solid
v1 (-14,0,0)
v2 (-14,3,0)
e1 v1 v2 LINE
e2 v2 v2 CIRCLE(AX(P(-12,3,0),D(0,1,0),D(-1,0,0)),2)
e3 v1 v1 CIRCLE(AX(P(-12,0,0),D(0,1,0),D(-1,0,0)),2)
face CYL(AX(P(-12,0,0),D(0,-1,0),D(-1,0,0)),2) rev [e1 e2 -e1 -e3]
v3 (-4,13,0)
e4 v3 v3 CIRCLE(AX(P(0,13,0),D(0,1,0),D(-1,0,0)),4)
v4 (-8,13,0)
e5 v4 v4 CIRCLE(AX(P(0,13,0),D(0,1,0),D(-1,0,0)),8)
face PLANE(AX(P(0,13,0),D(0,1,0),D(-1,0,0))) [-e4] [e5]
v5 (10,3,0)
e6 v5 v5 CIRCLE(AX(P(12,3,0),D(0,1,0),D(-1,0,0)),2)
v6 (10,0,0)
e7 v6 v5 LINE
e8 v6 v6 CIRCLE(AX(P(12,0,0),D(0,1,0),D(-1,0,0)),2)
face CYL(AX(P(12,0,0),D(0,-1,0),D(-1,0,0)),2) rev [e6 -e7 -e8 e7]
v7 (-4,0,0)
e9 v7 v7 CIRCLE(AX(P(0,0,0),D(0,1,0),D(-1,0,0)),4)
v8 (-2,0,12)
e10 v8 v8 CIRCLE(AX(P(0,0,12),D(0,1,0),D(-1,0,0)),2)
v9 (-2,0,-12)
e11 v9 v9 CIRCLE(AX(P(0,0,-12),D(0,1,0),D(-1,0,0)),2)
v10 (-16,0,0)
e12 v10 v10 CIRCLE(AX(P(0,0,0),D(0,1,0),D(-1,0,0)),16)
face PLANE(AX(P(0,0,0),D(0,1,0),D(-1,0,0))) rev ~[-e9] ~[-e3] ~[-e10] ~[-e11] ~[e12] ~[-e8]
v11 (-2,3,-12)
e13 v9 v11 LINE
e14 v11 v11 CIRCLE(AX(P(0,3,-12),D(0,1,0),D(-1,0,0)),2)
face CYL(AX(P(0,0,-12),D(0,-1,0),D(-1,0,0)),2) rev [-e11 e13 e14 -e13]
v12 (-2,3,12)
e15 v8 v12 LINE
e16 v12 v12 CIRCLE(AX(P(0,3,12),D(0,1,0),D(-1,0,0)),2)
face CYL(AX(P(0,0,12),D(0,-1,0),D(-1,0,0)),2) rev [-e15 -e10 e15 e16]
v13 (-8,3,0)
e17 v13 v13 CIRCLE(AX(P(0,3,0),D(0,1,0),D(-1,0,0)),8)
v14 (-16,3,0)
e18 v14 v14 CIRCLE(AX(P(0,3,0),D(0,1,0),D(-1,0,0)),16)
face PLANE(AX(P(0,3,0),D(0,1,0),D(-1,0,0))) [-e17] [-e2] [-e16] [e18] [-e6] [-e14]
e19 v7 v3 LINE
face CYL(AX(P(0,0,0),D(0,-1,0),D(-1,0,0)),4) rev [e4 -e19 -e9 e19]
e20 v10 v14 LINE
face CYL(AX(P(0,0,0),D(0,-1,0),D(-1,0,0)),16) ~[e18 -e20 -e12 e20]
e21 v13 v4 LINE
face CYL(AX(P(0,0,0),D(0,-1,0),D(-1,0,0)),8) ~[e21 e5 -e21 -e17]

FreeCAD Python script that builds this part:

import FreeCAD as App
import Part
import Sketcher
from FreeCAD import Vector

doc = App.newDocument("Part")
body = doc.addObject("PartDesign::Body", "Body")

# Sketch on XZ plane
sketch1 = body.newObject("Sketcher::SketchObject", "Sketch")
sketch1.AttachmentSupport = (doc.getObject("XZ_Plane"), [""])
sketch1.MapMode = "FlatFace"
sketch1.addGeometry([
    Part.Circle(Vector(0, 0, 0), Vector(0, 0, 1), 16),  # 0
    Part.Circle(Vector(0, -12, 0), Vector(0, 0, 1), 2),  # 1
    Part.Circle(Vector(12, 0, 0), Vector(0, 0, 1), 2),  # 2
    Part.Circle(Vector(0, 0, 0), Vector(0, 0, 1), 8),  # 3
    Part.Circle(Vector(-12, 0, 0), Vector(0, 0, 1), 2),  # 4
    Part.Circle(Vector(0, 12, 0), Vector(0, 0, 1), 2),  # 5
], False)
sketch1.addConstraint([
    Sketcher.Constraint("Coincident", 0, 3, -1, 1),
    Sketcher.Constraint("Coincident", 3, 3, -1, 1),
    Sketcher.Constraint("Equal", 1, 2),
    Sketcher.Constraint("Equal", 2, 4),
    Sketcher.Constraint("Equal", 4, 5),
    Sketcher.Constraint("Symmetric", 2, 3, 4, 3, -1, 1),
    Sketcher.Constraint("Symmetric", 1, 3, 5, 3, -1, 1),
    Sketcher.Constraint("PointOnObject", 1, 3, -2),
    Sketcher.Constraint("PointOnObject", 2, 3, -1),
    Sketcher.Constraint("Diameter", 0, 32.0),
    Sketcher.Constraint("Diameter", 1, 4.0),
    Sketcher.Constraint("Diameter", 3, 16.0),
    Sketcher.Constraint("DistanceX", 4, 3, 2, 3, 24.0),
    Sketcher.Constraint("DistanceY", 1, 3, 5, 3, 24.0),
])
pad1 = body.newObject("PartDesign::Pad", "Pad")
pad1.Profile = sketch1
pad1.Length = 3
pad1.Reversed = True

# Sketch on XZ plane
sketch2 = body.newObject("Sketcher::SketchObject", "Sketch001")
sketch2.AttachmentSupport = (doc.getObject("XZ_Plane"), [""])
sketch2.MapMode = "FlatFace"
sketch2.addGeometry([
    Part.Circle(Vector(0, 0, 0), Vector(0, 0, 1), 8),
    Part.Circle(Vector(0, 0, 0), Vector(0, 0, 1), 4),
], False)
sketch2.addConstraint([
    Sketcher.Constraint("Coincident", 0, 3, -1, 1),
    Sketcher.Constraint("Coincident", 1, 3, -1, 1),
    Sketcher.Constraint("Diameter", 0, 16.0),
    Sketcher.Constraint("Diameter", 1, 8.0),
])
pad2 = body.newObject("PartDesign::Pad", "Pad001")
pad2.Profile = sketch2
pad2.Length = 13
pad2.Reversed = True

doc.recompute()
